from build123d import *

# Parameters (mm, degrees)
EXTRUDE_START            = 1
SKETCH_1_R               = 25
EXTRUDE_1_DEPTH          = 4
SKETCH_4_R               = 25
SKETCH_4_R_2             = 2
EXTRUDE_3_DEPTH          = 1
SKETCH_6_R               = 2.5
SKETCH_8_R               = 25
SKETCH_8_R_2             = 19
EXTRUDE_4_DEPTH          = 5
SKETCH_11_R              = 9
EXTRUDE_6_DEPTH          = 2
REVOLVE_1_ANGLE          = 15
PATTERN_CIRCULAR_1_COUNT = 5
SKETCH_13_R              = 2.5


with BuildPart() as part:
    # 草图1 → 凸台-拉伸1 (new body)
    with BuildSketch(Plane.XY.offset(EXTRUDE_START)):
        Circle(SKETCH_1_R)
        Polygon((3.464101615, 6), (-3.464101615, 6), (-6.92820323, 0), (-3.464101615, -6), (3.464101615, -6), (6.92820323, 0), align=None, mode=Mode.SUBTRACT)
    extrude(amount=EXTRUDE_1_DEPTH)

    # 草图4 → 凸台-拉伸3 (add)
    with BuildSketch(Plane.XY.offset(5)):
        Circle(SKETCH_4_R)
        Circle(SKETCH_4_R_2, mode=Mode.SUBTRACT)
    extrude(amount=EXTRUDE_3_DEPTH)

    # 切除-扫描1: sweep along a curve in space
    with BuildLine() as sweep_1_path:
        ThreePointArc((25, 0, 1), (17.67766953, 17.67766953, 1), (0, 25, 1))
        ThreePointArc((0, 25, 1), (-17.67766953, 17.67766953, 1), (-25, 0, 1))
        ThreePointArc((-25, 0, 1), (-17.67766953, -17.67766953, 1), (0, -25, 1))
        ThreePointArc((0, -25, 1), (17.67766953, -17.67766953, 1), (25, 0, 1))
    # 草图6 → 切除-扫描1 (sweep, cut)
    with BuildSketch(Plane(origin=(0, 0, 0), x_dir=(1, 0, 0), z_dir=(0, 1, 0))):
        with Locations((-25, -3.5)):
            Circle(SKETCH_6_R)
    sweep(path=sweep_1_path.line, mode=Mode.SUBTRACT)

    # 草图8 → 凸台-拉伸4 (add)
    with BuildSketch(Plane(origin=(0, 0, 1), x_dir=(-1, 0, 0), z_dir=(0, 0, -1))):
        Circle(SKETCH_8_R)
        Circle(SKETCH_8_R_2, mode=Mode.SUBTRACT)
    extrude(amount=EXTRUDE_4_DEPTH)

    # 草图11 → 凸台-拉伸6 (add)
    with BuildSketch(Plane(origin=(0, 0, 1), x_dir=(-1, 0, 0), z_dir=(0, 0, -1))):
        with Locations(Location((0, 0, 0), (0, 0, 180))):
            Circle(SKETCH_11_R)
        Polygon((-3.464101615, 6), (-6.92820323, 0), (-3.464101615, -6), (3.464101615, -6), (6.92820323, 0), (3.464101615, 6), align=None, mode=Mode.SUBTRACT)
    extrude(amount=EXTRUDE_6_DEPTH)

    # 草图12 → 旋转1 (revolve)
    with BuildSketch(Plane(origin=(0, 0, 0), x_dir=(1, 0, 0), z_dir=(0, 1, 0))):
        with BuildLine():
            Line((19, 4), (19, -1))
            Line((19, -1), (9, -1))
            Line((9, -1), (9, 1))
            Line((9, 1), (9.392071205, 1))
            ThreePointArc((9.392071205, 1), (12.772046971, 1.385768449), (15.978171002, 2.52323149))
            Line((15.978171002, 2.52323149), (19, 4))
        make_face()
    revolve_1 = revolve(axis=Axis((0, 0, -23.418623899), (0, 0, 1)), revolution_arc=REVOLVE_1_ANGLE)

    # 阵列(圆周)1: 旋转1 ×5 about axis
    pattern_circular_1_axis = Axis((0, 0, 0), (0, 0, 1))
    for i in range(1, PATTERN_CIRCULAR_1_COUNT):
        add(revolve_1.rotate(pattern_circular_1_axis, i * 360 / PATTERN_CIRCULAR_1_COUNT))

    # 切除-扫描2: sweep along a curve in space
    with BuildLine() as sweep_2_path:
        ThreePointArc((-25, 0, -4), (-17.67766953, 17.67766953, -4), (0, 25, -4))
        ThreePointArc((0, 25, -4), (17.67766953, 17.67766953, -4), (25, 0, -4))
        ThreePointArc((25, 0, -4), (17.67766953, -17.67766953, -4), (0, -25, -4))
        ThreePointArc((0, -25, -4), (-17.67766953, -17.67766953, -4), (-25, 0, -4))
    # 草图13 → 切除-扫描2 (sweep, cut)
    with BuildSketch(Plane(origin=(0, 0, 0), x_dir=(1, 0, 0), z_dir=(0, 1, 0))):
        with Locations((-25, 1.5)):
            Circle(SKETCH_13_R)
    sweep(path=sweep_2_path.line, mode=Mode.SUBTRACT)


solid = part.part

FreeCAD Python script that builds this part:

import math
import FreeCAD as App
import Part
import Sketcher
from FreeCAD import Vector
Q = App.Units.Quantity

doc = App.newDocument("Part")
params = doc.addObject("Spreadsheet::Sheet", "Params")
for row, (alias, value) in enumerate([
    ("sketch1_diameter", "50 mm"),
    ("pad1_length", "4 mm"),
    ("sketch2_diameter", "50 mm"),
    ("sketch2_diameter2", "4 mm"),
    ("pad2_length", "1 mm"),
    ("sketch3_diameter", "5 mm"),
    ("sketch4_radius", "25 mm"),
    ("sketch5_diameter", "50 mm"),
    ("sketch5_diameter2", "38 mm"),
    ("pad3_length", "5 mm"),
    ("sketch6_diameter", "18 mm"),
    ("pad4_length", "2 mm"),
    ("sketch7_radius", "15 mm"),
    ("sketch7_width", "10 mm"),
    ("sketch7_height", "5 mm"),
    ("sketch7_height2", "2 mm"),
    ("revolution_angle", "15 deg"),
    ("sketch8_diameter", "5 mm"),
    ("sketch9_radius", "25 mm"),
], start=1):
    params.set(f"A{row}", alias)
    params.set(f"B{row}", "=" + value)
    params.setAlias(f"B{row}", alias)

body = doc.addObject("PartDesign::Body", "Body")

# Sketch on XY plane
sketch1 = body.newObject("Sketcher::SketchObject", "Sketch")
sketch1.AttachmentSupport = (doc.getObject("XY_Plane"), [""])
sketch1.MapMode = "FlatFace"
sketch1.AttachmentOffset = App.Placement(Vector(0, 0, 1), App.Rotation())
sketch1.addGeometry(Part.Circle(Vector(0, 0, 0), Vector(0, 0, 1), 25), False)
sketch1.addGeometry(Part.LineSegment(Vector(-3, 6, 0), Vector(3, 6, 0)), False)
sketch1.addGeometry(Part.LineSegment(Vector(3, 6, 0), Vector(7, 0, 0)), False)
sketch1.addGeometry(Part.LineSegment(Vector(7, 0, 0), Vector(3, -6, 0)), False)
sketch1.addGeometry(Part.LineSegment(Vector(3, -6, 0), Vector(-3, -6, 0)), False)
sketch1.addGeometry(Part.LineSegment(Vector(-3, -6, 0), Vector(-7, 0, 0)), False)
sketch1.addGeometry(Part.LineSegment(Vector(-7, 0, 0), Vector(-3, 6, 0)), False)
sketch1.addConstraint(Sketcher.Constraint("Coincident", 1, 2, 2, 1))
sketch1.addConstraint(Sketcher.Constraint("Coincident", 2, 2, 3, 1))
sketch1.addConstraint(Sketcher.Constraint("Coincident", 3, 2, 4, 1))
sketch1.addConstraint(Sketcher.Constraint("Coincident", 4, 2, 5, 1))
sketch1.addConstraint(Sketcher.Constraint("Coincident", 5, 2, 6, 1))
sketch1.addConstraint(Sketcher.Constraint("Coincident", 6, 2, 1, 1))
sketch1.addConstraint(Sketcher.Constraint("Horizontal", 1))
sketch1.addConstraint(Sketcher.Constraint("Horizontal", 4))
sketch1.addConstraint(Sketcher.Constraint("Coincident", 0, 3, -1, 1))
sketch1.addConstraint(Sketcher.Constraint("Symmetric", 1, 2, 4, 2, -1, 1))
sketch1.addConstraint(Sketcher.Constraint("Symmetric", 2, 2, 5, 2, -1, 1))
sketch1.addConstraint(Sketcher.Constraint("PointOnObject", 2, 2, -1))
sketch1.addConstraint(Sketcher.Constraint("Parallel", 3, 6))
sketch1.addConstraint(Sketcher.Constraint("Vertical", 1, 2, 3, 2))
sketch1.addConstraint(Sketcher.Constraint("Diameter", 0, 50.0))
sketch1.addConstraint(Sketcher.Constraint("Angle", 2, Q("-60 deg")))
sketch1.addConstraint(Sketcher.Constraint("DistanceY", -1, 1, 1, 2, 6.0))
sketch1.addConstraint(Sketcher.Constraint("DistanceX", -1, 1, 1, 2, 3.464102))
sketch1.setExpression("Constraints[14]", "Params.sketch1_diameter")
pad1 = body.newObject("PartDesign::Pad", "Pad")
pad1.Profile = sketch1
pad1.setExpression("Length", "Params.pad1_length")

# Sketch on XY plane
sketch2 = body.newObject("Sketcher::SketchObject", "Sketch001")
sketch2.AttachmentSupport = (doc.getObject("XY_Plane"), [""])
sketch2.MapMode = "FlatFace"
sketch2.AttachmentOffset = App.Placement(Vector(0, 0, 5), App.Rotation())
sketch2.addGeometry(Part.Circle(Vector(0, 0, 0), Vector(0, 0, 1), 25), False)
sketch2.addGeometry(Part.Circle(Vector(0, 0, 0), Vector(0, 0, 1), 2), False)
sketch2.addConstraint(Sketcher.Constraint("Coincident", 0, 3, -1, 1))
sketch2.addConstraint(Sketcher.Constraint("Coincident", 1, 3, -1, 1))
sketch2.addConstraint(Sketcher.Constraint("Diameter", 0, 50.0))
sketch2.addConstraint(Sketcher.Constraint("Diameter", 1, 4.0))
sketch2.setExpression("Constraints[2]", "Params.sketch2_diameter")
sketch2.setExpression("Constraints[3]", "Params.sketch2_diameter2")
pad2 = body.newObject("PartDesign::Pad", "Pad001")
pad2.Profile = sketch2
pad2.setExpression("Length", "Params.pad2_length")

# Sketch on XZ plane
sketch3 = body.newObject("Sketcher::SketchObject", "Sketch002")
sketch3.AttachmentSupport = (doc.getObject("XZ_Plane"), [""])
sketch3.MapMode = "FlatFace"
sketch3.addGeometry(Part.Circle(Vector(-25, 3.5, 0), Vector(0, 0, 1), 2.5), False)
sketch3.addConstraint(Sketcher.Constraint("Diameter", 0, 5.0))
sketch3.addConstraint(Sketcher.Constraint("DistanceX", 0, 3, -1, 1, 25.0))
sketch3.addConstraint(Sketcher.Constraint("DistanceY", -1, 1, 0, 3, 3.5))
sketch3.setExpression("Constraints[0]", "Params.sketch3_diameter")

# Sketch on XY plane
sketch4 = body.newObject("Sketcher::SketchObject", "Sketch003")
sketch4.AttachmentSupport = (doc.getObject("XY_Plane"), [""])
sketch4.MapMode = "FlatFace"
sketch4.AttachmentOffset = App.Placement(Vector(0, 0, 1), App.Rotation())
sketch4.addGeometry(Part.ArcOfCircle(Part.Circle(Vector(0, 0, 0), Vector(0, 0, 1), 25), math.radians(0), math.radians(90)), False)
sketch4.addGeometry(Part.ArcOfCircle(Part.Circle(Vector(0, 0, 0), Vector(0, 0, 1), 25), math.radians(90), math.radians(180)), False)
sketch4.addGeometry(Part.ArcOfCircle(Part.Circle(Vector(0, 0, 0), Vector(0, 0, 1), 25), math.radians(180), math.radians(270)), False)
sketch4.addGeometry(Part.ArcOfCircle(Part.Circle(Vector(0, 0, 0), Vector(0, 0, 1), 25), math.radians(-90), math.radians(0)), False)
sketch4.addConstraint(Sketcher.Constraint("Tangent", 0, 2, 1, 1))
sketch4.addConstraint(Sketcher.Constraint("Tangent", 1, 2, 2, 1))
sketch4.addConstraint(Sketcher.Constraint("Tangent", 2, 2, 3, 1))
sketch4.addConstraint(Sketcher.Constraint("Tangent", 3, 2, 0, 1))
sketch4.addConstraint(Sketcher.Constraint("Coincident", 0, 3, -1, 1))
sketch4.addConstraint(Sketcher.Constraint("Equal", 0, 1))
sketch4.addConstraint(Sketcher.Constraint("PointOnObject", 0, 2, -2))
sketch4.addConstraint(Sketcher.Constraint("PointOnObject", 1, 2, -1))
sketch4.addConstraint(Sketcher.Constraint("PointOnObject", 2, 2, -2))
sketch4.addConstraint(Sketcher.Constraint("PointOnObject", 3, 2, -1))
sketch4.addConstraint(Sketcher.Constraint("Radius", 0, 25.0))
sketch4.setExpression("Constraints[10]", "Params.sketch4_radius")
doc.recompute()

subtractivepipe = body.newObject("PartDesign::SubtractivePipe", "SubtractivePipe")
subtractivepipe.Profile = sketch3
subtractivepipe.Spine = (sketch4, ["Edge1", "Edge2", "Edge3", "Edge4"])

# Sketch on XY plane
sketch5 = body.newObject("Sketcher::SketchObject", "Sketch004")
sketch5.AttachmentSupport = (doc.getObject("XY_Plane"), [""])
sketch5.MapMode = "FlatFace"
sketch5.AttachmentOffset = App.Placement(Vector(0, 0, 1), App.Rotation())
sketch5.addGeometry(Part.Circle(Vector(0, 0, 0), Vector(0, 0, 1), 25), False)
sketch5.addGeometry(Part.Circle(Vector(0, 0, 0), Vector(0, 0, 1), 19), False)
sketch5.addConstraint(Sketcher.Constraint("Coincident", 0, 3, -1, 1))
sketch5.addConstraint(Sketcher.Constraint("Coincident", 1, 3, -1, 1))
sketch5.addConstraint(Sketcher.Constraint("Diameter", 0, 50.0))
sketch5.addConstraint(Sketcher.Constraint("Diameter", 1, 38.0))
sketch5.setExpression("Constraints[2]", "Params.sketch5_diameter")
sketch5.setExpression("Constraints[3]", "Params.sketch5_diameter2")
pad3 = body.newObject("PartDesign::Pad", "Pad002")
pad3.Profile = sketch5
pad3.setExpression("Length", "Params.pad3_length")
pad3.Reversed = True

# Sketch on XY plane
sketch6 = body.newObject("Sketcher::SketchObject", "Sketch005")
sketch6.AttachmentSupport = (doc.getObject("XY_Plane"), [""])
sketch6.MapMode = "FlatFace"
sketch6.AttachmentOffset = App.Placement(Vector(0, 0, 1), App.Rotation())
sketch6.addGeometry(Part.Circle(Vector(0, 0, 0), Vector(0, 0, 1), 9), False)
sketch6.addGeometry(Part.LineSegment(Vector(7, 0, 0), Vector(3, 6, 0)), False)
sketch6.addGeometry(Part.LineSegment(Vector(3, 6, 0), Vector(-3, 6, 0)), False)
sketch6.addGeometry(Part.LineSegment(Vector(-3, 6, 0), Vector(-7, 0, 0)), False)
sketch6.addGeometry(Part.LineSegment(Vector(-7, 0, 0), Vector(-3, -6, 0)), False)
sketch6.addGeometry(Part.LineSegment(Vector(-3, -6, 0), Vector(3, -6, 0)), False)
sketch6.addGeometry(Part.LineSegment(Vector(3, -6, 0), Vector(7, 0, 0)), False)
sketch6.addConstraint(Sketcher.Constraint("Coincident", 1, 2, 2, 1))
sketch6.addConstraint(Sketcher.Constraint("Coincident", 2, 2, 3, 1))
sketch6.addConstraint(Sketcher.Constraint("Coincident", 3, 2, 4, 1))
sketch6.addConstraint(Sketcher.Constraint("Coincident", 4, 2, 5, 1))
sketch6.addConstraint(Sketcher.Constraint("Coincident", 5, 2, 6, 1))
sketch6.addConstraint(Sketcher.Constraint("Coincident", 6, 2, 1, 1))
sketch6.addConstraint(Sketcher.Constraint("Horizontal", 2))
sketch6.addConstraint(Sketcher.Constraint("Horizontal", 5))
sketch6.addConstraint(Sketcher.Constraint("Coincident", 0, 3, -1, 1))
sketch6.addConstraint(Sketcher.Constraint("Symmetric", 1, 2, 4, 2, -1, 1))
sketch6.addConstraint(Sketcher.Constraint("Symmetric", 3, 2, 6, 2, -1, 1))
sketch6.addConstraint(Sketcher.Constraint("PointOnObject", 3, 2, -1))
sketch6.addConstraint(Sketcher.Constraint("Parallel", 3, 6))
sketch6.addConstraint(Sketcher.Constraint("Vertical", 2, 2, 4, 2))
sketch6.addConstraint(Sketcher.Constraint("Diameter", 0, 18.0))
sketch6.addConstraint(Sketcher.Constraint("Angle", 1, Q("120 deg")))
sketch6.addConstraint(Sketcher.Constraint("DistanceY", -1, 1, 1, 2, 6.0))
sketch6.addConstraint(Sketcher.Constraint("DistanceX", -1, 1, 1, 2, 3.464102))
sketch6.setExpression("Constraints[14]", "Params.sketch6_diameter")
pad4 = body.newObject("PartDesign::Pad", "Pad003")
pad4.Profile = sketch6
pad4.setExpression("Length", "Params.pad4_length")
pad4.Reversed = True

# Sketch on XZ plane
sketch7 = body.newObject("Sketcher::SketchObject", "Sketch006")
sketch7.AttachmentSupport = (doc.getObject("XZ_Plane"), [""])
sketch7.MapMode = "FlatFace"
sketch7.addGeometry(Part.LineSegment(Vector(19, 1, 0), Vector(19, -4, 0)), False)
sketch7.addGeometry(Part.LineSegment(Vector(19, -4, 0), Vector(15.98, -2.52, 0)), False)
sketch7.addGeometry(Part.ArcOfCircle(Part.Circle(Vector(9.39, -16, 0), Vector(0, 0, 1), 15), math.radians(64), math.radians(90)), False)
sketch7.addGeometry(Part.LineSegment(Vector(9.39, -1, 0), Vector(9, -1, 0)), False)
sketch7.addGeometry(Part.LineSegment(Vector(9, -1, 0), Vector(9, 1, 0)), False)
sketch7.addGeometry(Part.LineSegment(Vector(9, 1, 0), Vector(19, 1, 0)), False)
sketch7.addConstraint(Sketcher.Constraint("Coincident", 0, 2, 1, 1))
sketch7.addConstraint(Sketcher.Constraint("Tangent", 1, 2, 2, 1))
sketch7.addConstraint(Sketcher.Constraint("Tangent", 2, 2, 3, 1))
sketch7.addConstraint(Sketcher.Constraint("Coincident", 3, 2, 4, 1))
sketch7.addConstraint(Sketcher.Constraint("Coincident", 4, 2, 5, 1))
sketch7.addConstraint(Sketcher.Constraint("Coincident", 5, 2, 0, 1))
sketch7.addConstraint(Sketcher.Constraint("Vertical", 0))
sketch7.addConstraint(Sketcher.Constraint("Horizontal", 3))
sketch7.addConstraint(Sketcher.Constraint("Vertical", 4))
sketch7.addConstraint(Sketcher.Constraint("Horizontal", 5))
sketch7.addConstraint(Sketcher.Constraint("Radius", 2, 15.0))
sketch7.addConstraint(Sketcher.Constraint("DistanceX", 5, 1, 5, 2, 10.0))
sketch7.addConstraint(Sketcher.Constraint("DistanceY", 0, 2, 0, 1, 5.0))
sketch7.addConstraint(Sketcher.Constraint("DistanceY", 4, 1, 4, 2, 2.0))
sketch7.addConstraint(Sketcher.Constraint("DistanceY", 2, 3, -1, 1, 16.0))
sketch7.addConstraint(Sketcher.Constraint("DistanceX", -1, 1, 0, 2, 19.0))
sketch7.addConstraint(Sketcher.Constraint("DistanceX", 3, 2, 3, 1, 0.392071))
sketch7.setExpression("Constraints[10]", "Params.sketch7_radius")
sketch7.setExpression("Constraints[11]", "Params.sketch7_width")
sketch7.setExpression("Constraints[12]", "Params.sketch7_height")
sketch7.setExpression("Constraints[13]", "Params.sketch7_height2")
revolution = body.newObject("PartDesign::Revolution", "Revolution")
revolution.Profile = sketch7
revolution.ReferenceAxis = (sketch7, ["V_Axis"])
revolution.setExpression("Angle", "Params.revolution_angle")
doc.recompute()

polarpattern = body.newObject("PartDesign::PolarPattern", "PolarPattern")
polarpattern.Originals = [revolution]
polarpattern.Axis = (doc.getObject("Z_Axis"), [""])
polarpattern.Angle = 360
polarpattern.Occurrences = 5
body.Tip = polarpattern

# Sketch on XZ plane
sketch8 = body.newObject("Sketcher::SketchObject", "Sketch007")
sketch8.AttachmentSupport = (doc.getObject("XZ_Plane"), [""])
sketch8.MapMode = "FlatFace"
sketch8.addGeometry(Part.Circle(Vector(-25, -1.5, 0), Vector(0, 0, 1), 2.5), False)
sketch8.addConstraint(Sketcher.Constraint("Diameter", 0, 5.0))
sketch8.addConstraint(Sketcher.Constraint("DistanceX", 0, 3, -1, 1, 25.0))
sketch8.addConstraint(Sketcher.Constraint("DistanceY", 0, 3, -1, 1, 1.5))
sketch8.setExpression("Constraints[0]", "Params.sketch8_diameter")

# Sketch on XY plane
sketch9 = body.newObject("Sketcher::SketchObject", "Sketch008")
sketch9.AttachmentSupport = (doc.getObject("XY_Plane"), [""])
sketch9.MapMode = "FlatFace"
sketch9.AttachmentOffset = App.Placement(Vector(0, 0, -4), App.Rotation())
sketch9.addGeometry(Part.ArcOfCircle(Part.Circle(Vector(0, 0, 0), Vector(0, 0, 1), 25), math.radians(90), math.radians(180)), False)
sketch9.addGeometry(Part.ArcOfCircle(Part.Circle(Vector(0, 0, 0), Vector(0, 0, 1), 25), math.radians(0), math.radians(90)), False)
sketch9.addGeometry(Part.ArcOfCircle(Part.Circle(Vector(0, 0, 0), Vector(0, 0, 1), 25), math.radians(-90), math.radians(0)), False)
sketch9.addGeometry(Part.ArcOfCircle(Part.Circle(Vector(0, 0, 0), Vector(0, 0, 1), 25), math.radians(180), math.radians(270)), False)
sketch9.addConstraint(Sketcher.Constraint("Tangent", 0, 1, 1, 2))
sketch9.addConstraint(Sketcher.Constraint("Tangent", 1, 1, 2, 2))
sketch9.addConstraint(Sketcher.Constraint("Tangent", 2, 1, 3, 2))
sketch9.addConstraint(Sketcher.Constraint("Tangent", 3, 1, 0, 2))
sketch9.addConstraint(Sketcher.Constraint("Coincident", 0, 3, -1, 1))
sketch9.addConstraint(Sketcher.Constraint("Equal", 0, 1))
sketch9.addConstraint(Sketcher.Constraint("PointOnObject", 0, 1, -2))
sketch9.addConstraint(Sketcher.Constraint("PointOnObject", 1, 1, -1))
sketch9.addConstraint(Sketcher.Constraint("PointOnObject", 2, 1, -2))
sketch9.addConstraint(Sketcher.Constraint("PointOnObject", 3, 1, -1))
sketch9.addConstraint(Sketcher.Constraint("Radius", 0, 25.0))
sketch9.setExpression("Constraints[10]", "Params.sketch9_radius")
doc.recompute()

subtractivepipe2 = body.newObject("PartDesign::SubtractivePipe", "SubtractivePipe001")
subtractivepipe2.Profile = sketch8
subtractivepipe2.Spine = (sketch9, ["Edge1", "Edge2", "Edge3", "Edge4"])

doc.recompute()
